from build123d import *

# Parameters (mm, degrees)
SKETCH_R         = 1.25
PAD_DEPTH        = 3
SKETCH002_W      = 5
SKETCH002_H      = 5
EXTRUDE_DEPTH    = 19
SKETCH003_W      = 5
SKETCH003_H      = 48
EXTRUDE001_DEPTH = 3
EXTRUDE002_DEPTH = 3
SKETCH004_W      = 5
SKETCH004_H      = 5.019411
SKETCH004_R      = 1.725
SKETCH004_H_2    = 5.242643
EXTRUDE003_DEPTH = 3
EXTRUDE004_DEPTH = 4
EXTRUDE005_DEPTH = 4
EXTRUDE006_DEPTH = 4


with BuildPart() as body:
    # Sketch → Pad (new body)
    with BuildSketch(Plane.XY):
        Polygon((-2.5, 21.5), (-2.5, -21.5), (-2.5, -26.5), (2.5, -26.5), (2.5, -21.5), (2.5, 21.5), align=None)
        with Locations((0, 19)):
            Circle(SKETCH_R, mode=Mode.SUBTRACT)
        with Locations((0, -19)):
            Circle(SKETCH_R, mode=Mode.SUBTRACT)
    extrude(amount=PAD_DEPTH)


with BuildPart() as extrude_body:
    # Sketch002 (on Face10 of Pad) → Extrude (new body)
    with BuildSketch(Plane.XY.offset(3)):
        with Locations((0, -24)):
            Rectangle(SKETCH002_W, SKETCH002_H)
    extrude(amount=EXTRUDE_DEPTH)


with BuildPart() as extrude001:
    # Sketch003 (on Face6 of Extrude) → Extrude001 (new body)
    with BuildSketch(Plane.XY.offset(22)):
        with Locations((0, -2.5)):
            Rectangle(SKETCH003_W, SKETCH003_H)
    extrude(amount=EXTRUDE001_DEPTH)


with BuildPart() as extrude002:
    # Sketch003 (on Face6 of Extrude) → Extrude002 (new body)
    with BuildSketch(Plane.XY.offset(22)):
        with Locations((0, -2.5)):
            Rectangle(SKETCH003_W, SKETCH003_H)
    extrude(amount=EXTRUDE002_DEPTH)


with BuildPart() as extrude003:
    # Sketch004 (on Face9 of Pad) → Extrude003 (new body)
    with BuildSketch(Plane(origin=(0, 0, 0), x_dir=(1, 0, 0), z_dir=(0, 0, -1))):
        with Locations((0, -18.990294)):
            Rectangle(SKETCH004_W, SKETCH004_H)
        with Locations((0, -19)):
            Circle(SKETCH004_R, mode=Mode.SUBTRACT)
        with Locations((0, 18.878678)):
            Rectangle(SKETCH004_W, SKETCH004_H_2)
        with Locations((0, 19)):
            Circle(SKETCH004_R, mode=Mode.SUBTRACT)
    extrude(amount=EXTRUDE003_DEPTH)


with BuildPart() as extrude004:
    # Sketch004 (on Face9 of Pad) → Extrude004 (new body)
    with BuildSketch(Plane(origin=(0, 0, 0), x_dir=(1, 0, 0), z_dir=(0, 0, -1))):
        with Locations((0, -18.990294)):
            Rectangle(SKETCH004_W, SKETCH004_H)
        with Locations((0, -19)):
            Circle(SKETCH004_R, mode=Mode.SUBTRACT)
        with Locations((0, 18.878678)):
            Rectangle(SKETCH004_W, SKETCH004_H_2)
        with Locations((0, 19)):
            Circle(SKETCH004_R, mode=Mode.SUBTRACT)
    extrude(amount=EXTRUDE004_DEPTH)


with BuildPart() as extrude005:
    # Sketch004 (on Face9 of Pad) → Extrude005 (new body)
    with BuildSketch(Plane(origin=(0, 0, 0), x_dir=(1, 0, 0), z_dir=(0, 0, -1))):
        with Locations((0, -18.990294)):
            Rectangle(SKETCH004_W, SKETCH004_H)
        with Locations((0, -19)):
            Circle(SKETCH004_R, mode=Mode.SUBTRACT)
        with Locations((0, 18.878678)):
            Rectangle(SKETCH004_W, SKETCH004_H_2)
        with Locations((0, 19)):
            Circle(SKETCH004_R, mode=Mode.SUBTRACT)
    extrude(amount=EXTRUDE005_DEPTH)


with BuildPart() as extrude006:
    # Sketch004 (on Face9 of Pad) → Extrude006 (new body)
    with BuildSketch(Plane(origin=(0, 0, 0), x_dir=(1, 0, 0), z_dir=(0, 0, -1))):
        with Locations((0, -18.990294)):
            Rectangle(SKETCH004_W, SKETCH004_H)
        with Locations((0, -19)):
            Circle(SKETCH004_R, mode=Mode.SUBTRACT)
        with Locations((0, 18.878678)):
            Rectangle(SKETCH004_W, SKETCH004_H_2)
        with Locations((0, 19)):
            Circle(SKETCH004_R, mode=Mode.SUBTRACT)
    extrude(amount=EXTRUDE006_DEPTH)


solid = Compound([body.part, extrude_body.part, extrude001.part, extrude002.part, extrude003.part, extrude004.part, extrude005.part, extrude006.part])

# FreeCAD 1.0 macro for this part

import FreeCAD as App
import Part
import Sketcher
from FreeCAD import Vector
Q = App.Units.Quantity


def add_polygon(sketch, points):
    """Adds a closed chain of lines whose ends are joined by coincident constraints."""
    first, n = sketch.GeometryCount, len(points)
    for a, b in zip(points, points[1:] + points[:1]):
        sketch.addGeometry(Part.LineSegment(App.Vector(*a, 0), App.Vector(*b, 0)), False)
    for i in range(n):
        sketch.addConstraint(Sketcher.Constraint("Coincident", first + i, 2, first + (i + 1) % n, 1))

doc = App.newDocument("Part")
body = doc.addObject("PartDesign::Body", "Body")

# Sketch on XY plane
sketch1 = body.newObject("Sketcher::SketchObject", "Sketch")
sketch1.AttachmentSupport = (doc.getObject("XY_Plane"), [""])
sketch1.MapMode = "FlatFace"
add_polygon(sketch1, [(-2.5, 21.5), (-2.5, -26.5), (2.5, -26.5), (2.5, 21.5)])  # lines 0-3
sketch1.addGeometry(Part.Circle(Vector(0, -19, 0), Vector(0, 0, 1), 1.25), False)  # 4
sketch1.addGeometry(Part.Circle(Vector(0, 19, 0), Vector(0, 0, 1), 1.25), False)  # 5
sketch1.addConstraint([
    Sketcher.Constraint("Vertical", 0),
    Sketcher.Constraint("Horizontal", 1),
    Sketcher.Constraint("Vertical", 2),
    Sketcher.Constraint("Horizontal", 3),
    Sketcher.Constraint("Equal", 4, 5),
    Sketcher.Constraint("Symmetric", 4, 3, 5, 3, -1, 1),
    Sketcher.Constraint("PointOnObject", 4, 3, -2),
    Sketcher.Constraint("Diameter", 4, Q("2.5 mm")),
    Sketcher.Constraint("DistanceX", 1, 1, 1, 2, Q("5 mm")),
    Sketcher.Constraint("DistanceY", 0, 2, 0, 1, Q("48 mm")),
    Sketcher.Constraint("DistanceY", 4, 3, -1, 1, Q("19 mm")),
    Sketcher.Constraint("DistanceX", 0, 2, -1, 1, Q("2.5 mm")),
    Sketcher.Constraint("DistanceY", 0, 2, -1, 1, Q("26.5 mm")),
])
pad1 = body.newObject("PartDesign::Pad", "Pad")
pad1.Profile = sketch1
pad1.Length = 3
body2 = doc.addObject("PartDesign::Body", "Body001")

# Sketch on XY plane
sketch2 = body2.newObject("Sketcher::SketchObject", "Sketch001")
sketch2.AttachmentSupport = (doc.getObject("XY_Plane001"), [""])
sketch2.MapMode = "FlatFace"
sketch2.AttachmentOffset = App.Placement(Vector(0, 0, 3), App.Rotation())
add_polygon(sketch2, [(-2.5, -21.5), (-2.5, -26.5), (2.5, -26.5), (2.5, -21.5)])  # lines 0-3
sketch2.addConstraint([
    Sketcher.Constraint("Vertical", 0),
    Sketcher.Constraint("Horizontal", 1),
    Sketcher.Constraint("Vertical", 2),
    Sketcher.Constraint("Horizontal", 3),
    Sketcher.Constraint("Equal", 3, 0),
    Sketcher.Constraint("DistanceX", 1, 1, 1, 2, Q("5 mm")),
    Sketcher.Constraint("DistanceX", 0, 2, -1, 1, Q("2.5 mm")),
    Sketcher.Constraint("DistanceY", 0, 2, -1, 1, Q("26.5 mm")),
])
pad2 = body2.newObject("PartDesign::Pad", "Pad001")
pad2.Profile = sketch2
pad2.Length = 19
body3 = doc.addObject("PartDesign::Body", "Body002")

# Sketch on XY plane
sketch3 = body3.newObject("Sketcher::SketchObject", "Sketch002")
sketch3.AttachmentSupport = (doc.getObject("XY_Plane002"), [""])
sketch3.MapMode = "FlatFace"
sketch3.AttachmentOffset = App.Placement(Vector(0, 0, 22), App.Rotation())
add_polygon(sketch3, [(-2.5, 21.5), (-2.5, -26.5), (2.5, -26.5), (2.5, 21.5)])  # lines 0-3
sketch3.addConstraint([
    Sketcher.Constraint("Vertical", 0),
    Sketcher.Constraint("Horizontal", 1),
    Sketcher.Constraint("Vertical", 2),
    Sketcher.Constraint("Horizontal", 3),
    Sketcher.Constraint("DistanceX", 1, 1, 1, 2, Q("5 mm")),
    Sketcher.Constraint("DistanceY", 0, 2, 0, 1, Q("48 mm")),
    Sketcher.Constraint("DistanceX", 0, 2, -1, 1, Q("2.5 mm")),
    Sketcher.Constraint("DistanceY", 0, 2, -1, 1, Q("26.5 mm")),
])
pad3 = body3.newObject("PartDesign::Pad", "Pad002")
pad3.Profile = sketch3
pad3.Length = 3
body4 = doc.addObject("PartDesign::Body", "Body003")

# Sketch on XY plane
sketch4 = body4.newObject("Sketcher::SketchObject", "Sketch003")
sketch4.AttachmentSupport = (doc.getObject("XY_Plane003"), [""])
sketch4.MapMode = "FlatFace"
sketch4.AttachmentOffset = App.Placement(Vector(0, 0, 22), App.Rotation())
add_polygon(sketch4, [(-2.5, 21.5), (-2.5, -26.5), (2.5, -26.5), (2.5, 21.5)])  # lines 0-3
sketch4.addConstraint([
    Sketcher.Constraint("Vertical", 0),
    Sketcher.Constraint("Horizontal", 1),
    Sketcher.Constraint("Vertical", 2),
    Sketcher.Constraint("Horizontal", 3),
    Sketcher.Constraint("DistanceX", 1, 1, 1, 2, Q("5 mm")),
    Sketcher.Constraint("DistanceY", 0, 2, 0, 1, Q("48 mm")),
    Sketcher.Constraint("DistanceX", 0, 2, -1, 1, Q("2.5 mm")),
    Sketcher.Constraint("DistanceY", 0, 2, -1, 1, Q("26.5 mm")),
])
pad4 = body4.newObject("PartDesign::Pad", "Pad003")
pad4.Profile = sketch4
pad4.Length = 3
body5 = doc.addObject("PartDesign::Body", "Body004")
body5.AllowCompound = True

# Sketch on XY plane
sketch5 = body5.newObject("Sketcher::SketchObject", "Sketch004")
sketch5.AttachmentSupport = (doc.getObject("XY_Plane004"), [""])
sketch5.MapMode = "FlatFace"
add_polygon(sketch5, [(-2.5, 16.480588), (-2.5, 21.5), (2.5, 21.5), (2.5, 16.480588)])  # lines 0-3
sketch5.addGeometry(Part.Circle(Vector(0, 19, 0), Vector(0, 0, 1), 1.725), False)  # 4
add_polygon(sketch5, [(-2.5, -21.5), (-2.5, -16.257357), (2.5, -16.257357), (2.5, -21.5)])  # lines 5-8
sketch5.addGeometry(Part.Circle(Vector(0, -19, 0), Vector(0, 0, 1), 1.725), False)  # 9
sketch5.addConstraint([
    Sketcher.Constraint("Vertical", 0),
    Sketcher.Constraint("Horizontal", 1),
    Sketcher.Constraint("Vertical", 2),
    Sketcher.Constraint("Horizontal", 3),
    Sketcher.Constraint("Vertical", 5),
    Sketcher.Constraint("Horizontal", 6),
    Sketcher.Constraint("Vertical", 7),
    Sketcher.Constraint("Horizontal", 8),
    Sketcher.Constraint("Equal", 4, 9),
    Sketcher.Constraint("Symmetric", 4, 3, 9, 3, -1, 1),
    Sketcher.Constraint("Symmetric", 0, 2, 7, 2, -1, 1),
    Sketcher.Constraint("PointOnObject", 4, 3, -2),
    Sketcher.Constraint("Vertical", 3, 2, 5, 2),
    Sketcher.Constraint("Vertical", 2, 2, 6, 2),
    Sketcher.Constraint("Diameter", 4, Q("3.45 mm")),
    Sketcher.Constraint("DistanceX", 1, 1, 1, 2, Q("5 mm")),
    Sketcher.Constraint("DistanceY", -1, 1, 4, 3, Q("19 mm")),
    Sketcher.Constraint("DistanceY", -1, 1, 0, 2, Q("21.5 mm")),
    Sketcher.Constraint("DistanceY", 0, 1, 0, 2, Q("5.019411 mm")),
    Sketcher.Constraint("DistanceY", 5, 1, 5, 2, Q("5.242643 mm")),
])
pad5 = body5.newObject("PartDesign::Pad", "Pad004")
pad5.Profile = sketch5
pad5.Length = 3
pad5.Reversed = True
body6 = doc.addObject("PartDesign::Body", "Body005")
body6.AllowCompound = True

# Sketch on XY plane
sketch6 = body6.newObject("Sketcher::SketchObject", "Sketch005")
sketch6.AttachmentSupport = (doc.getObject("XY_Plane005"), [""])
sketch6.MapMode = "FlatFace"
add_polygon(sketch6, [(-2.5, 16.480588), (-2.5, 21.5), (2.5, 21.5), (2.5, 16.480588)])  # lines 0-3
sketch6.addGeometry(Part.Circle(Vector(0, 19, 0), Vector(0, 0, 1), 1.725), False)  # 4
add_polygon(sketch6, [(-2.5, -21.5), (-2.5, -16.257357), (2.5, -16.257357), (2.5, -21.5)])  # lines 5-8
sketch6.addGeometry(Part.Circle(Vector(0, -19, 0), Vector(0, 0, 1), 1.725), False)  # 9
sketch6.addConstraint([
    Sketcher.Constraint("Vertical", 0),
    Sketcher.Constraint("Horizontal", 1),
    Sketcher.Constraint("Vertical", 2),
    Sketcher.Constraint("Horizontal", 3),
    Sketcher.Constraint("Vertical", 5),
    Sketcher.Constraint("Horizontal", 6),
    Sketcher.Constraint("Vertical", 7),
    Sketcher.Constraint("Horizontal", 8),
    Sketcher.Constraint("Equal", 4, 9),
    Sketcher.Constraint("Symmetric", 4, 3, 9, 3, -1, 1),
    Sketcher.Constraint("Symmetric", 0, 2, 7, 2, -1, 1),
    Sketcher.Constraint("PointOnObject", 4, 3, -2),
    Sketcher.Constraint("Vertical", 3, 2, 5, 2),
    Sketcher.Constraint("Vertical", 2, 2, 6, 2),
    Sketcher.Constraint("Diameter", 4, Q("3.45 mm")),
    Sketcher.Constraint("DistanceX", 1, 1, 1, 2, Q("5 mm")),
    Sketcher.Constraint("DistanceY", -1, 1, 4, 3, Q("19 mm")),
    Sketcher.Constraint("DistanceY", -1, 1, 0, 2, Q("21.5 mm")),
    Sketcher.Constraint("DistanceY", 0, 1, 0, 2, Q("5.019411 mm")),
    Sketcher.Constraint("DistanceY", 5, 1, 5, 2, Q("5.242643 mm")),
])
pad6 = body6.newObject("PartDesign::Pad", "Pad005")
pad6.Profile = sketch6
pad6.Length = 4
pad6.Reversed = True
body7 = doc.addObject("PartDesign::Body", "Body006")
body7.AllowCompound = True

# Sketch on XY plane
sketch7 = body7.newObject("Sketcher::SketchObject", "Sketch006")
sketch7.AttachmentSupport = (doc.getObject("XY_Plane006"), [""])
sketch7.MapMode = "FlatFace"
add_polygon(sketch7, [(-2.5, 16.480588), (-2.5, 21.5), (2.5, 21.5), (2.5, 16.480588)])  # lines 0-3
sketch7.addGeometry(Part.Circle(Vector(0, 19, 0), Vector(0, 0, 1), 1.725), False)  # 4
add_polygon(sketch7, [(-2.5, -21.5), (-2.5, -16.257357), (2.5, -16.257357), (2.5, -21.5)])  # lines 5-8
sketch7.addGeometry(Part.Circle(Vector(0, -19, 0), Vector(0, 0, 1), 1.725), False)  # 9
sketch7.addConstraint([
    Sketcher.Constraint("Vertical", 0),
    Sketcher.Constraint("Horizontal", 1),
    Sketcher.Constraint("Vertical", 2),
    Sketcher.Constraint("Horizontal", 3),
    Sketcher.Constraint("Vertical", 5),
    Sketcher.Constraint("Horizontal", 6),
    Sketcher.Constraint("Vertical", 7),
    Sketcher.Constraint("Horizontal", 8),
    Sketcher.Constraint("Equal", 4, 9),
    Sketcher.Constraint("Symmetric", 4, 3, 9, 3, -1, 1),
    Sketcher.Constraint("Symmetric", 0, 2, 7, 2, -1, 1),
    Sketcher.Constraint("PointOnObject", 4, 3, -2),
    Sketcher.Constraint("Vertical", 3, 2, 5, 2),
    Sketcher.Constraint("Vertical", 2, 2, 6, 2),
    Sketcher.Constraint("Diameter", 4, Q("3.45 mm")),
    Sketcher.Constraint("DistanceX", 1, 1, 1, 2, Q("5 mm")),
    Sketcher.Constraint("DistanceY", -1, 1, 4, 3, Q("19 mm")),
    Sketcher.Constraint("DistanceY", -1, 1, 0, 2, Q("21.5 mm")),
    Sketcher.Constraint("DistanceY", 0, 1, 0, 2, Q("5.019411 mm")),
    Sketcher.Constraint("DistanceY", 5, 1, 5, 2, Q("5.242643 mm")),
])
pad7 = body7.newObject("PartDesign::Pad", "Pad006")
pad7.Profile = sketch7
pad7.Length = 4
pad7.Reversed = True
body8 = doc.addObject("PartDesign::Body", "Body007")
body8.AllowCompound = True

# Sketch on XY plane
sketch8 = body8.newObject("Sketcher::SketchObject", "Sketch007")
sketch8.AttachmentSupport = (doc.getObject("XY_Plane007"), [""])
sketch8.MapMode = "FlatFace"
add_polygon(sketch8, [(-2.5, 16.480588), (-2.5, 21.5), (2.5, 21.5), (2.5, 16.480588)])  # lines 0-3
sketch8.addGeometry(Part.Circle(Vector(0, 19, 0), Vector(0, 0, 1), 1.725), False)  # 4
add_polygon(sketch8, [(-2.5, -21.5), (-2.5, -16.257357), (2.5, -16.257357), (2.5, -21.5)])  # lines 5-8
sketch8.addGeometry(Part.Circle(Vector(0, -19, 0), Vector(0, 0, 1), 1.725), False)  # 9
sketch8.addConstraint([
    Sketcher.Constraint("Vertical", 0),
    Sketcher.Constraint("Horizontal", 1),
    Sketcher.Constraint("Vertical", 2),
    Sketcher.Constraint("Horizontal", 3),
    Sketcher.Constraint("Vertical", 5),
    Sketcher.Constraint("Horizontal", 6),
    Sketcher.Constraint("Vertical", 7),
    Sketcher.Constraint("Horizontal", 8),
    Sketcher.Constraint("Equal", 4, 9),
    Sketcher.Constraint("Symmetric", 4, 3, 9, 3, -1, 1),
    Sketcher.Constraint("Symmetric", 0, 2, 7, 2, -1, 1),
    Sketcher.Constraint("PointOnObject", 4, 3, -2),
    Sketcher.Constraint("Vertical", 3, 2, 5, 2),
    Sketcher.Constraint("Vertical", 2, 2, 6, 2),
    Sketcher.Constraint("Diameter", 4, Q("3.45 mm")),
    Sketcher.Constraint("DistanceX", 1, 1, 1, 2, Q("5 mm")),
    Sketcher.Constraint("DistanceY", -1, 1, 4, 3, Q("19 mm")),
    Sketcher.Constraint("DistanceY", -1, 1, 0, 2, Q("21.5 mm")),
    Sketcher.Constraint("DistanceY", 0, 1, 0, 2, Q("5.019411 mm")),
    Sketcher.Constraint("DistanceY", 5, 1, 5, 2, Q("5.242643 mm")),
])
pad8 = body8.newObject("PartDesign::Pad", "Pad007")
pad8.Profile = sketch8
pad8.Length = 4
pad8.Reversed = True

doc.recompute()
